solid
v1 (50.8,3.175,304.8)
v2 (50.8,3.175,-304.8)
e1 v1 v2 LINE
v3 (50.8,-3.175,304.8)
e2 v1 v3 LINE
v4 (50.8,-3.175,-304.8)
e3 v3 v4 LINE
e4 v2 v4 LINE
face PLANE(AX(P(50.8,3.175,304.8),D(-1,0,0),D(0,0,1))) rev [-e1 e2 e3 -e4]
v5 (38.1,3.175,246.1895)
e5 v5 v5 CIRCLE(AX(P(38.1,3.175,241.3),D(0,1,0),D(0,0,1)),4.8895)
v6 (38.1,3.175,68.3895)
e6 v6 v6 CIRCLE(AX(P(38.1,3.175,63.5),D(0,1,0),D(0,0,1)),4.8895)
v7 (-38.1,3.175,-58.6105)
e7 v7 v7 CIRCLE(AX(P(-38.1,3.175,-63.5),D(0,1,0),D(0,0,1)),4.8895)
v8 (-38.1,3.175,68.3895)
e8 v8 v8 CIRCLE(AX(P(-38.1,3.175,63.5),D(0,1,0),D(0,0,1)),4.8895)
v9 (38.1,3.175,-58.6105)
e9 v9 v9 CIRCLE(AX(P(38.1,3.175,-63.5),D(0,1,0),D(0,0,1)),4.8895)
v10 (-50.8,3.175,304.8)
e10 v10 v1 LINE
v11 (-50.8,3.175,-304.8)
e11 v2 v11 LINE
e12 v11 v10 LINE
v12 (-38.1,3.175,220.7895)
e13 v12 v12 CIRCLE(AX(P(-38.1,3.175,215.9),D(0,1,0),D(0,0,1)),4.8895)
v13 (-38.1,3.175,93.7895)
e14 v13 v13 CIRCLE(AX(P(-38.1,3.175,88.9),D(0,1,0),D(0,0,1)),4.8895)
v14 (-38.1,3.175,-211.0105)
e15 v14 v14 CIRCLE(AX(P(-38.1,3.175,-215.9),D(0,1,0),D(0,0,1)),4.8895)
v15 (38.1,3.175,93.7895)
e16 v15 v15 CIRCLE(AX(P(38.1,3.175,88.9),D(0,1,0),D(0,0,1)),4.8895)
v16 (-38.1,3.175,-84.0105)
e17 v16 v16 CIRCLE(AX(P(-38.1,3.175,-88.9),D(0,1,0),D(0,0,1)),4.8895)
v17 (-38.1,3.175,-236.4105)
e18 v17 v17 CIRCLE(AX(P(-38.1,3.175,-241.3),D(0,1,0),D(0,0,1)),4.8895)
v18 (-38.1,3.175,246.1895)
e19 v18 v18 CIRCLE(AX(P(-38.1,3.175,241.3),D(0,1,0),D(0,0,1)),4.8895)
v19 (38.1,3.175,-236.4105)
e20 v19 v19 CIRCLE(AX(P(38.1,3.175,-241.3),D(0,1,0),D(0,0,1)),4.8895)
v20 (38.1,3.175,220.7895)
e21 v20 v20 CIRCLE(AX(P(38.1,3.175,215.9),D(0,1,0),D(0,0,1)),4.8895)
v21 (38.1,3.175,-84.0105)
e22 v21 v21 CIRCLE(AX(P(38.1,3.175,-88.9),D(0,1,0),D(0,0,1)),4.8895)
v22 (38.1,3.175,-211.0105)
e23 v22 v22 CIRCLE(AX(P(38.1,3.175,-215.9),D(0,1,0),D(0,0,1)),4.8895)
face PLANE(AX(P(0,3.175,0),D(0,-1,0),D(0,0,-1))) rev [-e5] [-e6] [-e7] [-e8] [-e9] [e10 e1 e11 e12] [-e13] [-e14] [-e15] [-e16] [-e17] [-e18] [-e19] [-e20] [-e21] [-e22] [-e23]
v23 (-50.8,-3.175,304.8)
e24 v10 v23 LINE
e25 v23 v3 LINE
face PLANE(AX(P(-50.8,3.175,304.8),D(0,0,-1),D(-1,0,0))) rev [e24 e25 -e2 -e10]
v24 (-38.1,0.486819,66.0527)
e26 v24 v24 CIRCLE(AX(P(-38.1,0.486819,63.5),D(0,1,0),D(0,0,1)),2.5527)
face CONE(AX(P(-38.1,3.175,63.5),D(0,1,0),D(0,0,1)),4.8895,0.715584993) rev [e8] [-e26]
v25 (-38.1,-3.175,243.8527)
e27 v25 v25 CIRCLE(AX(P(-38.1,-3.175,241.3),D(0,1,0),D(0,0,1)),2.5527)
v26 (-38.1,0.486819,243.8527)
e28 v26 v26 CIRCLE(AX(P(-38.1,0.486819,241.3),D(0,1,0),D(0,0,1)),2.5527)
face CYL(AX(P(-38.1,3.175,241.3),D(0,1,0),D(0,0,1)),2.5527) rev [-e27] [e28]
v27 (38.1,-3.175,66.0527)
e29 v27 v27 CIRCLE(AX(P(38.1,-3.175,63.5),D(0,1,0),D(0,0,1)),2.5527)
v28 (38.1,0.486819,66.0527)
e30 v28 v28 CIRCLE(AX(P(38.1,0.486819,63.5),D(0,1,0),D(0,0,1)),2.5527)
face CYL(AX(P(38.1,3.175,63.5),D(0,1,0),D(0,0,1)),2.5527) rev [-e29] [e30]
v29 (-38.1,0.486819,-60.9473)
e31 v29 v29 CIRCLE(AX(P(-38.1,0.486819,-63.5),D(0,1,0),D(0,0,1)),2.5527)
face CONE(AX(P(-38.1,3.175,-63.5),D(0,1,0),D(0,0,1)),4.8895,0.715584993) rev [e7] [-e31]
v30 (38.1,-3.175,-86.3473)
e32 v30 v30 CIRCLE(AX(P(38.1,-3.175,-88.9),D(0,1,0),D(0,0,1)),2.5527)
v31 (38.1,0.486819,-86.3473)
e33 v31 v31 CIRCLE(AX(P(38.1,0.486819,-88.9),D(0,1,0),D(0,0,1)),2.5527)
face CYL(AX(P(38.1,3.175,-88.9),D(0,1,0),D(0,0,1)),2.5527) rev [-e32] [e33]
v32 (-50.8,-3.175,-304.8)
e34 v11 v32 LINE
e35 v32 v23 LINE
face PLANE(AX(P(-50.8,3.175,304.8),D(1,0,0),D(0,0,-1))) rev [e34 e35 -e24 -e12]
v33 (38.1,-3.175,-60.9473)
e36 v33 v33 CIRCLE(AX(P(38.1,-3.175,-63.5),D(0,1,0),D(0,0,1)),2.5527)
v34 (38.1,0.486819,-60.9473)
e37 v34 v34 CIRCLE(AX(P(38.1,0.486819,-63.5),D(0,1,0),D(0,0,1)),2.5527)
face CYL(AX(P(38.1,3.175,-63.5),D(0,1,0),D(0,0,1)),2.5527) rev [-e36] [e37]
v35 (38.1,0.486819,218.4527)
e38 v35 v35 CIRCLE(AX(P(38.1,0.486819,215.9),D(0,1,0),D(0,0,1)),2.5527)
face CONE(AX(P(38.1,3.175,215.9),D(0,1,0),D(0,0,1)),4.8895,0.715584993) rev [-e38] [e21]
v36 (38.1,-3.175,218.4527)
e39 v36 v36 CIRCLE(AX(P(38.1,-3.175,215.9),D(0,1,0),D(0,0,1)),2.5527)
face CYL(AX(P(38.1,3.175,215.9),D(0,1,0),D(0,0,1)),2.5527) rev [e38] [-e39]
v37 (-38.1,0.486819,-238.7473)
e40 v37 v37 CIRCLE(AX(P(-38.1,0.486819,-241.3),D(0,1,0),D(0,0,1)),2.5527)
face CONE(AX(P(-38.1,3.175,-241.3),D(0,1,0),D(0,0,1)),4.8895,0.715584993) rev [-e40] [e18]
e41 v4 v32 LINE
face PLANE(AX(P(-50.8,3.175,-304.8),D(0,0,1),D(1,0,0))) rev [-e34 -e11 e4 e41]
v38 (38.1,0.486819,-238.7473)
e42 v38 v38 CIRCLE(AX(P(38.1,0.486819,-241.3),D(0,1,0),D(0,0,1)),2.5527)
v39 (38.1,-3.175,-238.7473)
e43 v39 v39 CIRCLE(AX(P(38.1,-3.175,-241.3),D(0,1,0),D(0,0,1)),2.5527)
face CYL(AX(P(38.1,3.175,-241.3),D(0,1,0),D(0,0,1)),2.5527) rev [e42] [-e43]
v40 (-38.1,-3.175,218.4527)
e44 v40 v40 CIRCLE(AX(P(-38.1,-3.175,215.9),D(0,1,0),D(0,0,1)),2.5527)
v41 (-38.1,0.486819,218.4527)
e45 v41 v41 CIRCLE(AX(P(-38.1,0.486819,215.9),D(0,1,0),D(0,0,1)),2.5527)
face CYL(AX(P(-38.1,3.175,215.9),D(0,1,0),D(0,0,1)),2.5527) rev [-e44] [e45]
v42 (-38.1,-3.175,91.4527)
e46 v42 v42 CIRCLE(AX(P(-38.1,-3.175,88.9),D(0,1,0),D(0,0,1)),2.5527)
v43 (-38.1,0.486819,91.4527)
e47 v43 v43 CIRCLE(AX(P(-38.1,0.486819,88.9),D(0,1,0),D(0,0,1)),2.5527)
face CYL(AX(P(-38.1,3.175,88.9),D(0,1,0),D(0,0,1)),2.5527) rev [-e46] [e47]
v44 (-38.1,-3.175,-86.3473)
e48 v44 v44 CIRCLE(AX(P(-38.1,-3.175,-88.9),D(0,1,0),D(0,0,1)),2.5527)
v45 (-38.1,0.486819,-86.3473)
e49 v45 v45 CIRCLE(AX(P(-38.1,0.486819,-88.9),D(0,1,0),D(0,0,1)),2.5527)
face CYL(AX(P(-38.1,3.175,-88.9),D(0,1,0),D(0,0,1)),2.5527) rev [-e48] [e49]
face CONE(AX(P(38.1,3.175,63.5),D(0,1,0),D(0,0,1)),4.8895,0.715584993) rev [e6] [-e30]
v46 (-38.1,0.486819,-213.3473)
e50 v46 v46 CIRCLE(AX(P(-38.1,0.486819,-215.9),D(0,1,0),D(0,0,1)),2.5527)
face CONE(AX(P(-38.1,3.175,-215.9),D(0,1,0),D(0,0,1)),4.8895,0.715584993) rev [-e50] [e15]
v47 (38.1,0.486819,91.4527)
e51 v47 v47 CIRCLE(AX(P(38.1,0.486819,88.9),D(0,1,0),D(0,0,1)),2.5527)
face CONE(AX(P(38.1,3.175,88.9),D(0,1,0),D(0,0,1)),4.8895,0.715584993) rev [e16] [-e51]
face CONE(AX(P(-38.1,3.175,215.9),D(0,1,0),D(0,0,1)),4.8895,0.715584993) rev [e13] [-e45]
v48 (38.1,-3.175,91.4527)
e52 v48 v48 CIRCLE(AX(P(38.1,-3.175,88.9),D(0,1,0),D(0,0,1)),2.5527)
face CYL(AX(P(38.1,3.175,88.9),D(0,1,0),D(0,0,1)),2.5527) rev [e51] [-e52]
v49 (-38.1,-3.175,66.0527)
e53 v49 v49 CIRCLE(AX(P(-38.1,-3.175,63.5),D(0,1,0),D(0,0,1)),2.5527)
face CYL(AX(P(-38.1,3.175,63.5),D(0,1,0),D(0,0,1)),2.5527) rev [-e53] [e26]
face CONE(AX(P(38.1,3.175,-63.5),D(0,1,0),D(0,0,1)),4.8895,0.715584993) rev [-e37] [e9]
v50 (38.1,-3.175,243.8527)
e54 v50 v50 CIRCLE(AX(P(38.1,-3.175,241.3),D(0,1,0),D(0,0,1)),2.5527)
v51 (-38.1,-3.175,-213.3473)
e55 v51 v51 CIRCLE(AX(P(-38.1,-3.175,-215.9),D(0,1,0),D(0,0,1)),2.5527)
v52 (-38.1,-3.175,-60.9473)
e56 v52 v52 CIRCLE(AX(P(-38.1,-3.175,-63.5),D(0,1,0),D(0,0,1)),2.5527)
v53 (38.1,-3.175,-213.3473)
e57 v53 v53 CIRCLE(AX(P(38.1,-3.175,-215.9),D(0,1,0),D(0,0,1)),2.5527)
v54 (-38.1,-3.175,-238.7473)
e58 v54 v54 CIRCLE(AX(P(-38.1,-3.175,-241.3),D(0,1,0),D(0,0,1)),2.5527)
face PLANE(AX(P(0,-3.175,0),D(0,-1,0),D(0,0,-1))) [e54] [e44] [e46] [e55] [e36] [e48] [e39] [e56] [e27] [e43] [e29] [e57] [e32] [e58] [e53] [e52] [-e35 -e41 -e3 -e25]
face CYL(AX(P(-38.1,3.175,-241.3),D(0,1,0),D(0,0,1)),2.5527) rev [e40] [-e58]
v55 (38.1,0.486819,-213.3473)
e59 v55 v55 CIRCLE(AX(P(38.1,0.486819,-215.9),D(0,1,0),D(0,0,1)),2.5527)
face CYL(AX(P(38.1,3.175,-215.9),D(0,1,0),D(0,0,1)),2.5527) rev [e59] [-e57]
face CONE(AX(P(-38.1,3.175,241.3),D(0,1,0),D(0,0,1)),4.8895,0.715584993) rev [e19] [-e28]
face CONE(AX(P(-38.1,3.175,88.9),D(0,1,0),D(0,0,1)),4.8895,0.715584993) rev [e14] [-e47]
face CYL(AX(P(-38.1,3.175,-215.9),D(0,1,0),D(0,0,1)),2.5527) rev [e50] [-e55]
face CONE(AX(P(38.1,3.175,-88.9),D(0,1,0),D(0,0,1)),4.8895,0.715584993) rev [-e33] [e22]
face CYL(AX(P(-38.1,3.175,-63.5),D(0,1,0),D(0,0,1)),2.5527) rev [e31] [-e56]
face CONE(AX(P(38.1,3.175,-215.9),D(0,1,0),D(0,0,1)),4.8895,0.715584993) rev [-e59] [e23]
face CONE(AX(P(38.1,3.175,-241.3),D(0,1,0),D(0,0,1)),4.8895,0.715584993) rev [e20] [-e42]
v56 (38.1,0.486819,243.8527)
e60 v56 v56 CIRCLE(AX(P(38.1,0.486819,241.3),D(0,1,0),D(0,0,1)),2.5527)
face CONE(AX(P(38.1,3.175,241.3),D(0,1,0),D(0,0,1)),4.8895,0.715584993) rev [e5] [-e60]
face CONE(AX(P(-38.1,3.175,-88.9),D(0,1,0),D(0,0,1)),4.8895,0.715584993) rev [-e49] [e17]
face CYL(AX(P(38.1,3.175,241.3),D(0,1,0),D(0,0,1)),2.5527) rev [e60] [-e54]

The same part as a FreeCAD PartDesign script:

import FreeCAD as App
import Part
import Sketcher
from FreeCAD import Vector
Q = App.Units.Quantity


def add_polygon(sketch, points):
    """Adds a closed chain of lines whose ends are joined by coincident constraints."""
    first, n = sketch.GeometryCount, len(points)
    for a, b in zip(points, points[1:] + points[:1]):
        sketch.addGeometry(Part.LineSegment(App.Vector(*a, 0), App.Vector(*b, 0)), False)
    for i in range(n):
        sketch.addConstraint(Sketcher.Constraint("Coincident", first + i, 2, first + (i + 1) % n, 1))

doc = App.newDocument("Part")
body = doc.addObject("PartDesign::Body", "Body")

# Sketch on XZ plane
sketch1 = doc.addObject("Sketcher::SketchObject", "Sketch")
body.addObject(sketch1)
sketch1.AttachmentSupport = (doc.XZ_Plane, [""])
sketch1.MapMode = "FlatFace"
add_polygon(sketch1, [(-51, -305), (-51, 305), (51, 305), (51, -305)])  # lines 0-3
sketch1.addConstraint([
    Sketcher.Constraint("Vertical", 0),
    Sketcher.Constraint("Horizontal", 1),
    Sketcher.Constraint("Vertical", 2),
    Sketcher.Constraint("Horizontal", 3),
    Sketcher.Constraint("Symmetric", 0, 2, 2, 2, -1, 1),
    Sketcher.Constraint("DistanceX", 1, 1, 1, 2, Q("4 in")),
    Sketcher.Constraint("DistanceY", 0, 1, 0, 2, Q("24 in")),
])
pad1 = doc.addObject("PartDesign::Pad", "Pad")
body.addObject(pad1)
pad1.Profile = sketch1
pad1.Length = Q("0.25 in")
pad1.Midplane = True

# Sketch on XZ plane
sketch2 = doc.addObject("Sketcher::SketchObject", "Sketch001")
body.addObject(sketch2)
sketch2.AttachmentSupport = (doc.XZ_Plane, [""])
sketch2.MapMode = "FlatFace"
sketch2.AttachmentOffset = App.Placement(Vector(0, 0, -0.125 * 25.4), App.Rotation())
sketch2.addGeometry([
    Part.Circle(Vector(-38.1, 88.9, 0), Vector(0, 0, 1), 2.6),
    Part.Circle(Vector(-38.1, 63.5, 0), Vector(0, 0, 1), 2.6),
    Part.Circle(Vector(-38.1, 215.9, 0), Vector(0, 0, 1), 2.6),
    Part.Circle(Vector(-38.1, 241.3, 0), Vector(0, 0, 1), 2.6),
], False)
sketch2.addConstraint([
    Sketcher.Constraint("Equal", 0, 1),
    Sketcher.Constraint("Equal", 1, 2),
    Sketcher.Constraint("Equal", 2, 3),
    Sketcher.Constraint("Vertical", 0, 3, 1, 3),
    Sketcher.Constraint("Vertical", 1, 3, 2, 3),
    Sketcher.Constraint("Vertical", 2, 3, 3, 3),
    Sketcher.Constraint("Diameter", 0, Q("0.201 in")),
    Sketcher.Constraint("DistanceY", 1, 3, 0, 3, Q("1 in")),
    Sketcher.Constraint("DistanceY", 0, 3, 2, 3, Q("5 in")),
    Sketcher.Constraint("DistanceY", 2, 3, 3, 3, Q("1 in")),
    Sketcher.Constraint("DistanceX", 0, 3, -1, 1, Q("1.5 in")),
    Sketcher.Constraint("DistanceY", -1, 1, 0, 3, Q("3.5 in")),
])
doc.recompute()
hole = doc.addObject("PartDesign::Hole", "Hole")
body.addObject(hole)
hole.Profile = sketch2
hole.ThreadType = "None"
hole.Diameter = Q("0.201 in")
hole.DepthType = "ThroughAll"
hole.HoleCutType = "Countersink"
hole.HoleCutDiameter = Q("0.385 in")
hole.HoleCutCountersinkAngle = 82
hole.Reversed = True
doc.recompute()

mirrored = doc.addObject("PartDesign::Mirrored", "Mirrored")
body.addObject(mirrored)
mirrored.Originals = [hole]
mirrored.MirrorPlane = (doc.XY_Plane, [""])
body.Tip = mirrored
doc.recompute()

mirrored2 = doc.addObject("PartDesign::Mirrored", "Mirrored001")
body.addObject(mirrored2)
mirrored2.Originals = [hole]
mirrored2.MirrorPlane = (doc.YZ_Plane, [""])
body.Tip = mirrored2

# Sketch on XZ plane
sketch3 = doc.addObject("Sketcher::SketchObject", "Sketch002")
body.addObject(sketch3)
sketch3.AttachmentSupport = (doc.XZ_Plane, [""])
sketch3.MapMode = "FlatFace"
sketch3.AttachmentOffset = App.Placement(Vector(0, 0, -0.125 * 25.4), App.Rotation())
sketch3.addGeometry([
    Part.Circle(Vector(38.1, -88.9, 0), Vector(0, 0, 1), 2.6),
    Part.Circle(Vector(38.1, -63.5, 0), Vector(0, 0, 1), 2.6),
    Part.Circle(Vector(38.1, -215.9, 0), Vector(0, 0, 1), 2.6),
    Part.Circle(Vector(38.1, -241.3, 0), Vector(0, 0, 1), 2.6),
], False)
sketch3.addConstraint([
    Sketcher.Constraint("Equal", 0, 1),
    Sketcher.Constraint("Equal", 1, 2),
    Sketcher.Constraint("Equal", 2, 3),
    Sketcher.Constraint("Vertical", 0, 3, 1, 3),
    Sketcher.Constraint("Vertical", 1, 3, 2, 3),
    Sketcher.Constraint("Vertical", 2, 3, 3, 3),
    Sketcher.Constraint("Diameter", 0, Q("0.201 in")),
    Sketcher.Constraint("DistanceY", 0, 3, 1, 3, Q("1 in")),
    Sketcher.Constraint("DistanceY", 2, 3, 0, 3, Q("5 in")),
    Sketcher.Constraint("DistanceY", 3, 3, 2, 3, Q("1 in")),
    Sketcher.Constraint("DistanceX", -1, 1, 0, 3, Q("1.5 in")),
    Sketcher.Constraint("DistanceY", 0, 3, -1, 1, Q("3.5 in")),
])
doc.recompute()
hole2 = doc.addObject("PartDesign::Hole", "Hole001")
body.addObject(hole2)
hole2.Profile = sketch3
hole2.ThreadType = "None"
hole2.Diameter = Q("0.201 in")
hole2.DepthType = "ThroughAll"
hole2.HoleCutType = "Countersink"
hole2.HoleCutDiameter = Q("0.385 in")
hole2.HoleCutCountersinkAngle = 82
hole2.Reversed = True

doc.recompute()
